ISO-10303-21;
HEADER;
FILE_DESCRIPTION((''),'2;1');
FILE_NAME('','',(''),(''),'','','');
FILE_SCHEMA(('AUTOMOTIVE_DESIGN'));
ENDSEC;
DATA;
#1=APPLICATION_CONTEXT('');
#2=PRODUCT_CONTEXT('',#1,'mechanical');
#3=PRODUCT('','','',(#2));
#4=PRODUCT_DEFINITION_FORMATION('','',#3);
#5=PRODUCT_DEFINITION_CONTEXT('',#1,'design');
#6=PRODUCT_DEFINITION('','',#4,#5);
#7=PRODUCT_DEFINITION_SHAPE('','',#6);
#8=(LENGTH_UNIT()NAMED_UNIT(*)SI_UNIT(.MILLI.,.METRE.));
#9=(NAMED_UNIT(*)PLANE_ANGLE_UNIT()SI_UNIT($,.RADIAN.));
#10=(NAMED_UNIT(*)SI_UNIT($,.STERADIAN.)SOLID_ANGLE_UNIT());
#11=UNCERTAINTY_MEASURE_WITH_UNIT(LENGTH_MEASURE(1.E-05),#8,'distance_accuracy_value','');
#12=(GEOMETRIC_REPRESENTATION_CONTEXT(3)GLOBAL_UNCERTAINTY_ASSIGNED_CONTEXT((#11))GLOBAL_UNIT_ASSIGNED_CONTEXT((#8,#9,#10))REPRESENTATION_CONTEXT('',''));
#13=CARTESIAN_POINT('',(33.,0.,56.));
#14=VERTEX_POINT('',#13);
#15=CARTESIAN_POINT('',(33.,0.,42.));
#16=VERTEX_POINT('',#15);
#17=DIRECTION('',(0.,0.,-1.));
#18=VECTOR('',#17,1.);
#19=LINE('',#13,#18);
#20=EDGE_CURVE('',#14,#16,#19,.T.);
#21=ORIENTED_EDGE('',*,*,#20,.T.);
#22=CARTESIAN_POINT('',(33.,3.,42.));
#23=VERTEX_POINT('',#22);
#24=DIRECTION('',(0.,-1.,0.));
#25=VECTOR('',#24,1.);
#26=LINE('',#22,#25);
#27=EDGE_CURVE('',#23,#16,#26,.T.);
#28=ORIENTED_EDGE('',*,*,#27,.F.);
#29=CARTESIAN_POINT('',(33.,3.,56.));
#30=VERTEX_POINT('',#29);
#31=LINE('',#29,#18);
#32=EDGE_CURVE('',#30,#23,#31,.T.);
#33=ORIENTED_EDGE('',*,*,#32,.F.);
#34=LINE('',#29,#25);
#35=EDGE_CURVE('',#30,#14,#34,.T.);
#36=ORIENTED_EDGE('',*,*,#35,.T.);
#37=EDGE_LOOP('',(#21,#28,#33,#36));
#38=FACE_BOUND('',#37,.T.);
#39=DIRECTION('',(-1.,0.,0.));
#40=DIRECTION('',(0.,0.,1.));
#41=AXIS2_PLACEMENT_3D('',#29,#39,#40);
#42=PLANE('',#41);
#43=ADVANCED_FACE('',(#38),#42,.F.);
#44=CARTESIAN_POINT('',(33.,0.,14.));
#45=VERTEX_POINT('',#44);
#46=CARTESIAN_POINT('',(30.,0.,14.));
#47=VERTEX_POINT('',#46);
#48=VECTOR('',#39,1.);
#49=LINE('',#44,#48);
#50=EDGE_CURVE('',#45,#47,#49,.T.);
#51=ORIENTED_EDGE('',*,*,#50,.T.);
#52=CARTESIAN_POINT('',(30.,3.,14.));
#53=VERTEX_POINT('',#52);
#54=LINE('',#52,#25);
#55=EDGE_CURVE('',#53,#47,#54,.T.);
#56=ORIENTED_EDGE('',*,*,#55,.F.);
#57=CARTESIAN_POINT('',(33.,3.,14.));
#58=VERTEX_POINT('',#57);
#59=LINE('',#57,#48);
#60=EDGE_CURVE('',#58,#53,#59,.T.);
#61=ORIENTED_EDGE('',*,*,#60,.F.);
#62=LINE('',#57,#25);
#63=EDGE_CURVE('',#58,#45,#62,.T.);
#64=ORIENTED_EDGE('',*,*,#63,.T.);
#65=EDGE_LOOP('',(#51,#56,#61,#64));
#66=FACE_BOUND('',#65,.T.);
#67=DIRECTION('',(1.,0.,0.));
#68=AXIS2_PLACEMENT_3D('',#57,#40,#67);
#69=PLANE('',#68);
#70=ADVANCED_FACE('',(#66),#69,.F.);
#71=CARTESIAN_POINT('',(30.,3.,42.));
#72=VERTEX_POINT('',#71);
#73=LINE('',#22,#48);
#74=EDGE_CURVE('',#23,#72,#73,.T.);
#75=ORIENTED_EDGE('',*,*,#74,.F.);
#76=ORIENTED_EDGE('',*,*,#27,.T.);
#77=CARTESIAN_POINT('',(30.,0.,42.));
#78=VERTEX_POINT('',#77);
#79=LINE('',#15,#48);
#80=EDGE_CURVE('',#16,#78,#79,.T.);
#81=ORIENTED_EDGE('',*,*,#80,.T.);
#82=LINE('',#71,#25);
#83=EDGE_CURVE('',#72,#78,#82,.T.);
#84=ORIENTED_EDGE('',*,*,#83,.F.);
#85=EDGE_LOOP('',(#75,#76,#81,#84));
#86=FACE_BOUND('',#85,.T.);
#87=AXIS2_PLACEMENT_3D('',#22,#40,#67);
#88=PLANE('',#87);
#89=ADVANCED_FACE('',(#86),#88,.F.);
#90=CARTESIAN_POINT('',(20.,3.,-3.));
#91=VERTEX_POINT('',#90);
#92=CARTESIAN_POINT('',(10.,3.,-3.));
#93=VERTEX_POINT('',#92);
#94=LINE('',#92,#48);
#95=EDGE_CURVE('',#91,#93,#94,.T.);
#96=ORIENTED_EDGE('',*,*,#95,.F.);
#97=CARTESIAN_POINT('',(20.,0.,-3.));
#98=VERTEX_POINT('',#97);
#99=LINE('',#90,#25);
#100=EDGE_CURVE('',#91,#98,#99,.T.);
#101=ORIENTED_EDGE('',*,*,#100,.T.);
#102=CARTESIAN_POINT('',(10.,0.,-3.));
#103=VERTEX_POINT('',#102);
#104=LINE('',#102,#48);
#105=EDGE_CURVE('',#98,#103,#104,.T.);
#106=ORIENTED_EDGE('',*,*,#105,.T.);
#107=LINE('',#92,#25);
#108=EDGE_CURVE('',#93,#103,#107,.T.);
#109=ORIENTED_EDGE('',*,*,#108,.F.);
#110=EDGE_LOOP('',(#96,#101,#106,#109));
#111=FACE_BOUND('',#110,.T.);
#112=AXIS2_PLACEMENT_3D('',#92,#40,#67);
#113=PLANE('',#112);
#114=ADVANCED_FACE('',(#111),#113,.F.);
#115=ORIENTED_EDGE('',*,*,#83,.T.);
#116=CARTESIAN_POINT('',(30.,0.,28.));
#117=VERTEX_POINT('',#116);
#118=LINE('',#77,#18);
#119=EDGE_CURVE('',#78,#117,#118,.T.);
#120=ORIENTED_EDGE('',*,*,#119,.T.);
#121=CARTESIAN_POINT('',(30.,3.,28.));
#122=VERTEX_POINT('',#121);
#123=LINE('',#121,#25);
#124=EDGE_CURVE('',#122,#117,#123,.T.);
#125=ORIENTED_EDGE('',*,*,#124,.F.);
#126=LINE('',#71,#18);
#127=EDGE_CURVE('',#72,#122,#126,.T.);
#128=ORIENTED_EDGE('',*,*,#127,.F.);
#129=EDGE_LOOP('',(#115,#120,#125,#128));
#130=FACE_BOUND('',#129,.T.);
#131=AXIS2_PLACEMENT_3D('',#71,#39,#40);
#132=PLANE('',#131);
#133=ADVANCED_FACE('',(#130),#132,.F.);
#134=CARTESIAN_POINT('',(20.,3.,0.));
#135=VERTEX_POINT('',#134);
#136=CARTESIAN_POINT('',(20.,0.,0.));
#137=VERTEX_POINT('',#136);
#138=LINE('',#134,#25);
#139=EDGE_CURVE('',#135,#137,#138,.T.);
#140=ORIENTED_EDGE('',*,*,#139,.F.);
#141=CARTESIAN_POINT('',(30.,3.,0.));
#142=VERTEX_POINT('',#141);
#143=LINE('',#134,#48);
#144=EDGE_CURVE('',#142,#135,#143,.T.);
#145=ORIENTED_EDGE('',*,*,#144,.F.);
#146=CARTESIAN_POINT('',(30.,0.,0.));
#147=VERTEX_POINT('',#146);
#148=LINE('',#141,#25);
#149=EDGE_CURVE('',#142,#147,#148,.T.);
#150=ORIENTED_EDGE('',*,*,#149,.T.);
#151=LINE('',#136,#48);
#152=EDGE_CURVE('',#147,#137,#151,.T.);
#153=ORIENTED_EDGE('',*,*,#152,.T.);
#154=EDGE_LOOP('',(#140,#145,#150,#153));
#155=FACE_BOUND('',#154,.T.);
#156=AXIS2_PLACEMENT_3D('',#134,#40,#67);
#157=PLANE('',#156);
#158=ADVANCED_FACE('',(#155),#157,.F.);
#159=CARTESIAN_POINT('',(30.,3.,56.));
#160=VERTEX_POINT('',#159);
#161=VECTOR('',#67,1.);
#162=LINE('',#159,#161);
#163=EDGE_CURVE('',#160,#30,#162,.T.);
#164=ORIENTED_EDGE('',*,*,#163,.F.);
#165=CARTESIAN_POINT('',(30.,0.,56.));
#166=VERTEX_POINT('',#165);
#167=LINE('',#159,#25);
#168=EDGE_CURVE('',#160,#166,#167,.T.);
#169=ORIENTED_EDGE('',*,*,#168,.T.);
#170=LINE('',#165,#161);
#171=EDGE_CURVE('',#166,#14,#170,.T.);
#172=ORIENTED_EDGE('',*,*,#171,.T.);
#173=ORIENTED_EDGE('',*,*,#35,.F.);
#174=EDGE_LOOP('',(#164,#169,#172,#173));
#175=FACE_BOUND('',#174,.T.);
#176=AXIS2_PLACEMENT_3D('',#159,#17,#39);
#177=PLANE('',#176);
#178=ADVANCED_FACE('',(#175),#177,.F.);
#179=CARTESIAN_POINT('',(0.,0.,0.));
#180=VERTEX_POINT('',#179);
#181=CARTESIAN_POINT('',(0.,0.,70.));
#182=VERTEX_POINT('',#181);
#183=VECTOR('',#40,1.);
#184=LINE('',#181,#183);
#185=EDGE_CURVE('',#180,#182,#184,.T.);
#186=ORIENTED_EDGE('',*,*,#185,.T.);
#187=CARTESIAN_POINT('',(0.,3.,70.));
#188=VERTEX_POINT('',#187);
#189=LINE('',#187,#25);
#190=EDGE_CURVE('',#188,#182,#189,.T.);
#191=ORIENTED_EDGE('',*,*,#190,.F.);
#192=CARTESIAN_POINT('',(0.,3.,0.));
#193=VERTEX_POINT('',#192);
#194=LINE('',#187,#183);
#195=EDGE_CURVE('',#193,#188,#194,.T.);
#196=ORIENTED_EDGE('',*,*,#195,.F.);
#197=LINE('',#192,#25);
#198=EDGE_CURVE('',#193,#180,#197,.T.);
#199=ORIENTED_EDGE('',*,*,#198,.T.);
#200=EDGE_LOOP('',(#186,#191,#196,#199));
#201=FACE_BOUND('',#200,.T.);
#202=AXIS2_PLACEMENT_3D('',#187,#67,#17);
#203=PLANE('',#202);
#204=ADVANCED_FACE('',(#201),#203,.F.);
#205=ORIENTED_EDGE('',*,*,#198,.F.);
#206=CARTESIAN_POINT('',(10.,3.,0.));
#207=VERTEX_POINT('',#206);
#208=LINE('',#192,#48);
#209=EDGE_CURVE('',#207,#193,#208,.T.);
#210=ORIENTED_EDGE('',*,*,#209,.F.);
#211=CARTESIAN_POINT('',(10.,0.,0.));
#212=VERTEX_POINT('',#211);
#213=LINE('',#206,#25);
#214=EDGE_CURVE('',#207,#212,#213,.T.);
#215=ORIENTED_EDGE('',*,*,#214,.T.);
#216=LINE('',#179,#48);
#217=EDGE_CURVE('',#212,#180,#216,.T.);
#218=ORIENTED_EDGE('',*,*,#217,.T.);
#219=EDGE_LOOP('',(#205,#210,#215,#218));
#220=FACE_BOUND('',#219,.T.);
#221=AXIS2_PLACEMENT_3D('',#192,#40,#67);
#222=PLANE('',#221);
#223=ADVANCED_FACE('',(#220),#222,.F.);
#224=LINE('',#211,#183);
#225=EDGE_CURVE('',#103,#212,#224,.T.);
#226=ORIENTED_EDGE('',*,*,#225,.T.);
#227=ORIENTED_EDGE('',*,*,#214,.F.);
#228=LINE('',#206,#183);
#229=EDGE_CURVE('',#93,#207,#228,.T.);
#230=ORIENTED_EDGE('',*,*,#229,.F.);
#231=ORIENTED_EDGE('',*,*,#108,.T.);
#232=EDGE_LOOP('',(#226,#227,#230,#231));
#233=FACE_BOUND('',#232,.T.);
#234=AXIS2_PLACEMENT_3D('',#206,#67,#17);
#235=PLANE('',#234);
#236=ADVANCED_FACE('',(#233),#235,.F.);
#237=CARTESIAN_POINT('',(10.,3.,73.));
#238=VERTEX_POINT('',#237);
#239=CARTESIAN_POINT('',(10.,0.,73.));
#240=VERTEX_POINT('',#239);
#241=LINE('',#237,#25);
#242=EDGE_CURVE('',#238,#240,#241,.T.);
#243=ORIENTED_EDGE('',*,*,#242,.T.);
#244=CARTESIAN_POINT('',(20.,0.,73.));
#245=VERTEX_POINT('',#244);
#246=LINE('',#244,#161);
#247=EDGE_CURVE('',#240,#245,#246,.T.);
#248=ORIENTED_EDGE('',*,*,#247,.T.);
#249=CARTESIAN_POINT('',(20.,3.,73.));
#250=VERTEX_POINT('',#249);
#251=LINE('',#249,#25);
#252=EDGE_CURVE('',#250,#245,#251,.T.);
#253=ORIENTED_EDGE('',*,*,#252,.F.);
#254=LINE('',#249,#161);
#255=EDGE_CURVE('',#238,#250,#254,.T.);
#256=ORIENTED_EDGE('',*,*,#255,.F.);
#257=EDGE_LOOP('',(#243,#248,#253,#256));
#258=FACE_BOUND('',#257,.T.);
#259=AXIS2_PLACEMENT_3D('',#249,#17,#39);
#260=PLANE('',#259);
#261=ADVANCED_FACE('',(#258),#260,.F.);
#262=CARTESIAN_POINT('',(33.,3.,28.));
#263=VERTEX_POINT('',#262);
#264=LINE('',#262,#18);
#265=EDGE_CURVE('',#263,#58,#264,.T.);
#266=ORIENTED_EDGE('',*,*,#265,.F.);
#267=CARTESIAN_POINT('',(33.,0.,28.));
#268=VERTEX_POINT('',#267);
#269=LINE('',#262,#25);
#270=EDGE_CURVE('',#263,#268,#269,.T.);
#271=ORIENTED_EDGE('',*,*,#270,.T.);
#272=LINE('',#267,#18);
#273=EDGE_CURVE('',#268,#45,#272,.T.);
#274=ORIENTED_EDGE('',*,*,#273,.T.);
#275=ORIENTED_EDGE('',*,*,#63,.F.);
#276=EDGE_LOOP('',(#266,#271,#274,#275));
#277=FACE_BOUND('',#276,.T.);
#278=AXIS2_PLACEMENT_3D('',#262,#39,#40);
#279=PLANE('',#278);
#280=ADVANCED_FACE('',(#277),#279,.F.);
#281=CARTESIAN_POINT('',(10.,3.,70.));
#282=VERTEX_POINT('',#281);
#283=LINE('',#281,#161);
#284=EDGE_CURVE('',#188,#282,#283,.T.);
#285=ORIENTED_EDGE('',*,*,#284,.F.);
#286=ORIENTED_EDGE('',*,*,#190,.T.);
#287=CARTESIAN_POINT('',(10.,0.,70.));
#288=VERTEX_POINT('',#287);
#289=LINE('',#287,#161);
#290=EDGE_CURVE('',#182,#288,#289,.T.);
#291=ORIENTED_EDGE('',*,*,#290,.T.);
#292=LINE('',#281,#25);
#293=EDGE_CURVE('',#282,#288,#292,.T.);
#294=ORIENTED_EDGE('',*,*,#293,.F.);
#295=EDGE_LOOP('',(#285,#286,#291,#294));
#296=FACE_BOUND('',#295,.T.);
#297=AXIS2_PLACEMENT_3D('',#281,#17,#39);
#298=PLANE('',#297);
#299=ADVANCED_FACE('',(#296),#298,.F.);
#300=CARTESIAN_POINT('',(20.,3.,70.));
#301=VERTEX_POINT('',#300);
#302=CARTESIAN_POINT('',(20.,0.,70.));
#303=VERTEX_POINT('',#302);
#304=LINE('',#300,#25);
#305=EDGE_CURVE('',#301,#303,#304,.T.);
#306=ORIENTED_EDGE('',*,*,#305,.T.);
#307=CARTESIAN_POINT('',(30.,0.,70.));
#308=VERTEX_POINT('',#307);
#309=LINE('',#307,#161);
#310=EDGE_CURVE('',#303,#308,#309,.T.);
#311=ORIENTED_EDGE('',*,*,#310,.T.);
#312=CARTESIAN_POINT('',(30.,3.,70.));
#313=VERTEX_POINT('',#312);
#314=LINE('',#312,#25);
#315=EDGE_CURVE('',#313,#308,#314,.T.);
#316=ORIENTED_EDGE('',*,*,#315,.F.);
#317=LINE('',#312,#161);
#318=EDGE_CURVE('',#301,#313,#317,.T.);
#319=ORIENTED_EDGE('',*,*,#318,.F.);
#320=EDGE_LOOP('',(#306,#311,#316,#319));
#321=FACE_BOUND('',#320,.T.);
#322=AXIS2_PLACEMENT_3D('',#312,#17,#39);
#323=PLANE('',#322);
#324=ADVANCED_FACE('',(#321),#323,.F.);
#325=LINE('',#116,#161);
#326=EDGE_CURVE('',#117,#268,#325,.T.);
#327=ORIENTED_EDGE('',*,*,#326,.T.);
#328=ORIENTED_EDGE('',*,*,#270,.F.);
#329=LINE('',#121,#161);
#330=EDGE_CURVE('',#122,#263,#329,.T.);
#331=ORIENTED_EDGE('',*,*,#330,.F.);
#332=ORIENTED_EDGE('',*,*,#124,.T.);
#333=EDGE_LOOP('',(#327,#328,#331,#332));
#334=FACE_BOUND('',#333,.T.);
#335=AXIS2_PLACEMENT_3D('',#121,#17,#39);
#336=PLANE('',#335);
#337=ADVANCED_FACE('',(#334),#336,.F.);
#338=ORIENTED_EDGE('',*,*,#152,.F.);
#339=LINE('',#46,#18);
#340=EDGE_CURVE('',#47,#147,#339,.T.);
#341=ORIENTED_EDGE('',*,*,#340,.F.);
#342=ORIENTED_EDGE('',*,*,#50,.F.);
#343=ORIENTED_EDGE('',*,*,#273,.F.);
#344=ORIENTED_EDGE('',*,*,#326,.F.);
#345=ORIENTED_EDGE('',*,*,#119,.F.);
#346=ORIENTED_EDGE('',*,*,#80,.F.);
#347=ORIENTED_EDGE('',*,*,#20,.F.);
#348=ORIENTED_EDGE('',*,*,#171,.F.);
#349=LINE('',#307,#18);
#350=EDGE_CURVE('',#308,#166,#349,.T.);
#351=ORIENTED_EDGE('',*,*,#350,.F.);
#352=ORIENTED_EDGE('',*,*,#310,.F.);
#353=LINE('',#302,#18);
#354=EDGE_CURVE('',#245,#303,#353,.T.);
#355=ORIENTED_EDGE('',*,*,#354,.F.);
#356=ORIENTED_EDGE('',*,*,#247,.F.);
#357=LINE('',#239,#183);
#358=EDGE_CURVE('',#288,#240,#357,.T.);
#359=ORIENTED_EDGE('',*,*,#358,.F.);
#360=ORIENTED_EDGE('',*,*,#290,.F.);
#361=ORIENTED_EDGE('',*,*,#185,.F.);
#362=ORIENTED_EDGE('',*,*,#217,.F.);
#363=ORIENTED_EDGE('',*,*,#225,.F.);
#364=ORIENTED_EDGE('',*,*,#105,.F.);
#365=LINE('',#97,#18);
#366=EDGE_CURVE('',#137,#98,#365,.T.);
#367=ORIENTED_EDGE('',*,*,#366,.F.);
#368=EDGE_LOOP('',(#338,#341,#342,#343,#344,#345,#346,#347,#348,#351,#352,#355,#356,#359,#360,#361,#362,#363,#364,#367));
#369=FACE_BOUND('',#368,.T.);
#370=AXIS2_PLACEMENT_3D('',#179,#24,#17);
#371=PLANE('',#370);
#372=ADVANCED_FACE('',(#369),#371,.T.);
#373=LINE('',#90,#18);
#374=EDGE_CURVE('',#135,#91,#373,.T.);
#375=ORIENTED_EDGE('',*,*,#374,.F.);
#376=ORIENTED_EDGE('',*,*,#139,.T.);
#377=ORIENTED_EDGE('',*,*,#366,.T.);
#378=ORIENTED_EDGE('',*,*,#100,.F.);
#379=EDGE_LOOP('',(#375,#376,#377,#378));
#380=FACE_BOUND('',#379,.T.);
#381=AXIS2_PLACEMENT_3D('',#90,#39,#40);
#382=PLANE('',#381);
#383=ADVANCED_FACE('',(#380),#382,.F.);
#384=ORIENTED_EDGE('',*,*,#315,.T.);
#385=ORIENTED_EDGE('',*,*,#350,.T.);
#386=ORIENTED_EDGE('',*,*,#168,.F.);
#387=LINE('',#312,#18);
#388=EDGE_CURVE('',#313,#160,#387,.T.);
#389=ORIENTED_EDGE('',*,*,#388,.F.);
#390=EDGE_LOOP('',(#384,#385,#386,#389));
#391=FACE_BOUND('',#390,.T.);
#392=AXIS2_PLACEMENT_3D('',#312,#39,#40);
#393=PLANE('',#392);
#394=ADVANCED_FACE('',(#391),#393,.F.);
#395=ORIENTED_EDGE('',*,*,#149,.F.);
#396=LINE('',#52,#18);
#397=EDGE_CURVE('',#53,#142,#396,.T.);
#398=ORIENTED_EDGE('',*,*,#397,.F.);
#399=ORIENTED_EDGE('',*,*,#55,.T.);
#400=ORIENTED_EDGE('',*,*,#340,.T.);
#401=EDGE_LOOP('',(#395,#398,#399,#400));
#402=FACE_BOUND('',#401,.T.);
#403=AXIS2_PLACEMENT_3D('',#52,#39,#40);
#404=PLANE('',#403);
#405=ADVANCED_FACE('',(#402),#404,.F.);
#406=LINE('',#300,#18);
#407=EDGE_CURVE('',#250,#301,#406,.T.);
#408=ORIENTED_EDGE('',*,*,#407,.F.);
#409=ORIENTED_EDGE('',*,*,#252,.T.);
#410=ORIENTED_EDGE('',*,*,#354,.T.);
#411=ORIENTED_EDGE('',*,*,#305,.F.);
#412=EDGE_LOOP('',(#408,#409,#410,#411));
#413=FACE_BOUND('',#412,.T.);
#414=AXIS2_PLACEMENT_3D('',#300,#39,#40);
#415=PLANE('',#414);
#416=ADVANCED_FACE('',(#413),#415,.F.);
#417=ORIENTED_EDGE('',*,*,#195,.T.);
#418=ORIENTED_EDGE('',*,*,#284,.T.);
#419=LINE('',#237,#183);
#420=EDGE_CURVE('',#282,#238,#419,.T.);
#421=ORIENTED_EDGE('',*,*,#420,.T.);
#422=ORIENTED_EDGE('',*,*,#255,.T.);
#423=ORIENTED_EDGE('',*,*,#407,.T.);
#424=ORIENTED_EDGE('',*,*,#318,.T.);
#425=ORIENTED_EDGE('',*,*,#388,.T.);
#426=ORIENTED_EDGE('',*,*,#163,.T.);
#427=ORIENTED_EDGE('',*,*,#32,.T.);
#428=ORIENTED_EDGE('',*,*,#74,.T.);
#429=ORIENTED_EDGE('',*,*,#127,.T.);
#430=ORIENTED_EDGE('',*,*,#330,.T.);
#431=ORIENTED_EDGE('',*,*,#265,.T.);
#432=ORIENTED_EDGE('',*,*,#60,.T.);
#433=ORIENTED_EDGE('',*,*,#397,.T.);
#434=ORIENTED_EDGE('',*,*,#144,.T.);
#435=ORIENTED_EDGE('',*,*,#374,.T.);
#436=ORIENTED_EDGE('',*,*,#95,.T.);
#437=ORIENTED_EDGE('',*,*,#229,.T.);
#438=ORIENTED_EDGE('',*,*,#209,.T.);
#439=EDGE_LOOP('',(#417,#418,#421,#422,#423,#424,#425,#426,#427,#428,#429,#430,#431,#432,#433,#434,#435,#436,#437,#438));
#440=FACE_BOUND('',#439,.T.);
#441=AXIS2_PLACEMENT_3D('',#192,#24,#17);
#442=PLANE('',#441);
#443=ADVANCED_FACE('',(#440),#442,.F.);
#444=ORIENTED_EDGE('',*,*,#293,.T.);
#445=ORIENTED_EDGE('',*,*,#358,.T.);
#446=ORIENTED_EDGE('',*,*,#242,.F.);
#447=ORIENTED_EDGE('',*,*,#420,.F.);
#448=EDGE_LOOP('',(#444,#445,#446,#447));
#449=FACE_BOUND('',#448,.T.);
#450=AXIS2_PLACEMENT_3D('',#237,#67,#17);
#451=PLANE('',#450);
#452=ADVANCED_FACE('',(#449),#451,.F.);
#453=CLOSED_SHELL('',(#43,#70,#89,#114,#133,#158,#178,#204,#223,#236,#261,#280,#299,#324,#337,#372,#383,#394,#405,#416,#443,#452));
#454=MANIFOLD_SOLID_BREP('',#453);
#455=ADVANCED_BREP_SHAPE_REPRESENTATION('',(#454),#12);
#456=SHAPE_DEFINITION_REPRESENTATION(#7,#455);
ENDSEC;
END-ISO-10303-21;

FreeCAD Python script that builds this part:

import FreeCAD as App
import Part
import Sketcher

V = App.Vector

doc = App.newDocument("Part")
body = doc.addObject("PartDesign::Body", "Body")

# Sketch on XZ plane
sketch1 = body.newObject("Sketcher::SketchObject", "Sketch")
sketch1.AttachmentSupport = (doc.getObject("XZ_Plane"), [""])
sketch1.MapMode = "FlatFace"
sketch1.addGeometry([
    Part.LineSegment(V(10, 0, 0), V(0, 0, 0)),  # 0
    Part.LineSegment(V(0, 0, 0), V(0, 70, 0)),  # 1
    Part.LineSegment(V(0, 70, 0), V(10, 70, 0)),  # 2
    Part.LineSegment(V(10, 70, 0), V(10, 73, 0)),  # 3
    Part.LineSegment(V(10, 73, 0), V(20, 73, 0)),  # 4
    Part.LineSegment(V(20, 73, 0), V(20, 70, 0)),  # 5
    Part.LineSegment(V(20, 70, 0), V(30, 70, 0)),  # 6
    Part.LineSegment(V(30, 70, 0), V(30, 56, 0)),  # 7
    Part.LineSegment(V(30, 56, 0), V(33, 56, 0)),  # 8
    Part.LineSegment(V(33, 56, 0), V(33, 42, 0)),  # 9
    Part.LineSegment(V(33, 42, 0), V(30, 42, 0)),  # 10
    Part.LineSegment(V(30, 42, 0), V(30, 28, 0)),  # 11
    Part.LineSegment(V(30, 28, 0), V(33, 28, 0)),  # 12
    Part.LineSegment(V(33, 28, 0), V(33, 14, 0)),  # 13
    Part.LineSegment(V(33, 14, 0), V(30, 14, 0)),  # 14
    Part.LineSegment(V(30, 14, 0), V(30, 0, 0)),  # 15
    Part.LineSegment(V(30, 0, 0), V(20, 0, 0)),  # 16
    Part.LineSegment(V(20, 0, 0), V(20, -3, 0)),  # 17
    Part.LineSegment(V(20, -3, 0), V(10, -3, 0)),  # 18
    Part.LineSegment(V(10, -3, 0), V(10, 0, 0)),  # 19
], False)
sketch1.addConstraint([
    Sketcher.Constraint("Coincident", 0, 2, 1, 1),
    Sketcher.Constraint("Coincident", 1, 2, 2, 1),
    Sketcher.Constraint("Coincident", 2, 2, 3, 1),
    Sketcher.Constraint("Coincident", 3, 2, 4, 1),
    Sketcher.Constraint("Coincident", 4, 2, 5, 1),
    Sketcher.Constraint("Coincident", 5, 2, 6, 1),
    Sketcher.Constraint("Coincident", 6, 2, 7, 1),
    Sketcher.Constraint("Coincident", 7, 2, 8, 1),
    Sketcher.Constraint("Coincident", 8, 2, 9, 1),
    Sketcher.Constraint("Coincident", 9, 2, 10, 1),
    Sketcher.Constraint("Coincident", 10, 2, 11, 1),
    Sketcher.Constraint("Coincident", 11, 2, 12, 1),
    Sketcher.Constraint("Coincident", 12, 2, 13, 1),
    Sketcher.Constraint("Coincident", 13, 2, 14, 1),
    Sketcher.Constraint("Coincident", 14, 2, 15, 1),
    Sketcher.Constraint("Coincident", 15, 2, 16, 1),
    Sketcher.Constraint("Coincident", 16, 2, 17, 1),
    Sketcher.Constraint("Coincident", 17, 2, 18, 1),
    Sketcher.Constraint("Coincident", 18, 2, 19, 1),
    Sketcher.Constraint("Coincident", 19, 2, 0, 1),
    Sketcher.Constraint("Horizontal", 0),
    Sketcher.Constraint("Vertical", 1),
    Sketcher.Constraint("Horizontal", 2),
    Sketcher.Constraint("Vertical", 3),
    Sketcher.Constraint("Horizontal", 4),
    Sketcher.Constraint("Vertical", 5),
    Sketcher.Constraint("Horizontal", 6),
    Sketcher.Constraint("Vertical", 7),
    Sketcher.Constraint("Horizontal", 8),
    Sketcher.Constraint("Vertical", 9),
    Sketcher.Constraint("Horizontal", 10),
    Sketcher.Constraint("Vertical", 11),
    Sketcher.Constraint("Horizontal", 12),
    Sketcher.Constraint("Vertical", 13),
    Sketcher.Constraint("Horizontal", 14),
    Sketcher.Constraint("Vertical", 15),
    Sketcher.Constraint("Horizontal", 16),
    Sketcher.Constraint("Vertical", 17),
    Sketcher.Constraint("Horizontal", 18),
    Sketcher.Constraint("Vertical", 19),
    Sketcher.Constraint("Coincident", 0, 2, -1, 1),
    Sketcher.Constraint("PointOnObject", 15, 2, -1),
    Sketcher.Constraint("Horizontal", 2, 2, 5, 2),
    Sketcher.Constraint("Vertical", 7, 2, 10, 2),
    Sketcher.Constraint("Vertical", 9, 2, 12, 2),
    Sketcher.Constraint("Vertical", 11, 2, 14, 2),
    Sketcher.Constraint("Vertical", 5, 2, 16, 2),
    Sketcher.Constraint("Vertical", 3, 2, 18, 2),
    Sketcher.Constraint("Equal", 2, 4),
    Sketcher.Constraint("Equal", 4, 6),
    Sketcher.Constraint("Equal", 14, 3),
    Sketcher.Constraint("Equal", 7, 9),
    Sketcher.Constraint("Equal", 9, 11),
    Sketcher.Constraint("Equal", 11, 13),
    Sketcher.Constraint("Equal", 13, 15),
    Sketcher.Constraint("Equal", 5, 17),
    Sketcher.Constraint("DistanceX", 0, 2, 0, 1, 10.0),
    Sketcher.Constraint("DistanceX", 8, 1, 8, 2, 3.0),
    Sketcher.Constraint("DistanceY", 1, 1, 1, 2, 70.0),
])
pad1 = body.newObject("PartDesign::Pad", "Pad")
pad1.Profile = sketch1
pad1.Length = 3
pad1.Reversed = True

doc.recompute()
